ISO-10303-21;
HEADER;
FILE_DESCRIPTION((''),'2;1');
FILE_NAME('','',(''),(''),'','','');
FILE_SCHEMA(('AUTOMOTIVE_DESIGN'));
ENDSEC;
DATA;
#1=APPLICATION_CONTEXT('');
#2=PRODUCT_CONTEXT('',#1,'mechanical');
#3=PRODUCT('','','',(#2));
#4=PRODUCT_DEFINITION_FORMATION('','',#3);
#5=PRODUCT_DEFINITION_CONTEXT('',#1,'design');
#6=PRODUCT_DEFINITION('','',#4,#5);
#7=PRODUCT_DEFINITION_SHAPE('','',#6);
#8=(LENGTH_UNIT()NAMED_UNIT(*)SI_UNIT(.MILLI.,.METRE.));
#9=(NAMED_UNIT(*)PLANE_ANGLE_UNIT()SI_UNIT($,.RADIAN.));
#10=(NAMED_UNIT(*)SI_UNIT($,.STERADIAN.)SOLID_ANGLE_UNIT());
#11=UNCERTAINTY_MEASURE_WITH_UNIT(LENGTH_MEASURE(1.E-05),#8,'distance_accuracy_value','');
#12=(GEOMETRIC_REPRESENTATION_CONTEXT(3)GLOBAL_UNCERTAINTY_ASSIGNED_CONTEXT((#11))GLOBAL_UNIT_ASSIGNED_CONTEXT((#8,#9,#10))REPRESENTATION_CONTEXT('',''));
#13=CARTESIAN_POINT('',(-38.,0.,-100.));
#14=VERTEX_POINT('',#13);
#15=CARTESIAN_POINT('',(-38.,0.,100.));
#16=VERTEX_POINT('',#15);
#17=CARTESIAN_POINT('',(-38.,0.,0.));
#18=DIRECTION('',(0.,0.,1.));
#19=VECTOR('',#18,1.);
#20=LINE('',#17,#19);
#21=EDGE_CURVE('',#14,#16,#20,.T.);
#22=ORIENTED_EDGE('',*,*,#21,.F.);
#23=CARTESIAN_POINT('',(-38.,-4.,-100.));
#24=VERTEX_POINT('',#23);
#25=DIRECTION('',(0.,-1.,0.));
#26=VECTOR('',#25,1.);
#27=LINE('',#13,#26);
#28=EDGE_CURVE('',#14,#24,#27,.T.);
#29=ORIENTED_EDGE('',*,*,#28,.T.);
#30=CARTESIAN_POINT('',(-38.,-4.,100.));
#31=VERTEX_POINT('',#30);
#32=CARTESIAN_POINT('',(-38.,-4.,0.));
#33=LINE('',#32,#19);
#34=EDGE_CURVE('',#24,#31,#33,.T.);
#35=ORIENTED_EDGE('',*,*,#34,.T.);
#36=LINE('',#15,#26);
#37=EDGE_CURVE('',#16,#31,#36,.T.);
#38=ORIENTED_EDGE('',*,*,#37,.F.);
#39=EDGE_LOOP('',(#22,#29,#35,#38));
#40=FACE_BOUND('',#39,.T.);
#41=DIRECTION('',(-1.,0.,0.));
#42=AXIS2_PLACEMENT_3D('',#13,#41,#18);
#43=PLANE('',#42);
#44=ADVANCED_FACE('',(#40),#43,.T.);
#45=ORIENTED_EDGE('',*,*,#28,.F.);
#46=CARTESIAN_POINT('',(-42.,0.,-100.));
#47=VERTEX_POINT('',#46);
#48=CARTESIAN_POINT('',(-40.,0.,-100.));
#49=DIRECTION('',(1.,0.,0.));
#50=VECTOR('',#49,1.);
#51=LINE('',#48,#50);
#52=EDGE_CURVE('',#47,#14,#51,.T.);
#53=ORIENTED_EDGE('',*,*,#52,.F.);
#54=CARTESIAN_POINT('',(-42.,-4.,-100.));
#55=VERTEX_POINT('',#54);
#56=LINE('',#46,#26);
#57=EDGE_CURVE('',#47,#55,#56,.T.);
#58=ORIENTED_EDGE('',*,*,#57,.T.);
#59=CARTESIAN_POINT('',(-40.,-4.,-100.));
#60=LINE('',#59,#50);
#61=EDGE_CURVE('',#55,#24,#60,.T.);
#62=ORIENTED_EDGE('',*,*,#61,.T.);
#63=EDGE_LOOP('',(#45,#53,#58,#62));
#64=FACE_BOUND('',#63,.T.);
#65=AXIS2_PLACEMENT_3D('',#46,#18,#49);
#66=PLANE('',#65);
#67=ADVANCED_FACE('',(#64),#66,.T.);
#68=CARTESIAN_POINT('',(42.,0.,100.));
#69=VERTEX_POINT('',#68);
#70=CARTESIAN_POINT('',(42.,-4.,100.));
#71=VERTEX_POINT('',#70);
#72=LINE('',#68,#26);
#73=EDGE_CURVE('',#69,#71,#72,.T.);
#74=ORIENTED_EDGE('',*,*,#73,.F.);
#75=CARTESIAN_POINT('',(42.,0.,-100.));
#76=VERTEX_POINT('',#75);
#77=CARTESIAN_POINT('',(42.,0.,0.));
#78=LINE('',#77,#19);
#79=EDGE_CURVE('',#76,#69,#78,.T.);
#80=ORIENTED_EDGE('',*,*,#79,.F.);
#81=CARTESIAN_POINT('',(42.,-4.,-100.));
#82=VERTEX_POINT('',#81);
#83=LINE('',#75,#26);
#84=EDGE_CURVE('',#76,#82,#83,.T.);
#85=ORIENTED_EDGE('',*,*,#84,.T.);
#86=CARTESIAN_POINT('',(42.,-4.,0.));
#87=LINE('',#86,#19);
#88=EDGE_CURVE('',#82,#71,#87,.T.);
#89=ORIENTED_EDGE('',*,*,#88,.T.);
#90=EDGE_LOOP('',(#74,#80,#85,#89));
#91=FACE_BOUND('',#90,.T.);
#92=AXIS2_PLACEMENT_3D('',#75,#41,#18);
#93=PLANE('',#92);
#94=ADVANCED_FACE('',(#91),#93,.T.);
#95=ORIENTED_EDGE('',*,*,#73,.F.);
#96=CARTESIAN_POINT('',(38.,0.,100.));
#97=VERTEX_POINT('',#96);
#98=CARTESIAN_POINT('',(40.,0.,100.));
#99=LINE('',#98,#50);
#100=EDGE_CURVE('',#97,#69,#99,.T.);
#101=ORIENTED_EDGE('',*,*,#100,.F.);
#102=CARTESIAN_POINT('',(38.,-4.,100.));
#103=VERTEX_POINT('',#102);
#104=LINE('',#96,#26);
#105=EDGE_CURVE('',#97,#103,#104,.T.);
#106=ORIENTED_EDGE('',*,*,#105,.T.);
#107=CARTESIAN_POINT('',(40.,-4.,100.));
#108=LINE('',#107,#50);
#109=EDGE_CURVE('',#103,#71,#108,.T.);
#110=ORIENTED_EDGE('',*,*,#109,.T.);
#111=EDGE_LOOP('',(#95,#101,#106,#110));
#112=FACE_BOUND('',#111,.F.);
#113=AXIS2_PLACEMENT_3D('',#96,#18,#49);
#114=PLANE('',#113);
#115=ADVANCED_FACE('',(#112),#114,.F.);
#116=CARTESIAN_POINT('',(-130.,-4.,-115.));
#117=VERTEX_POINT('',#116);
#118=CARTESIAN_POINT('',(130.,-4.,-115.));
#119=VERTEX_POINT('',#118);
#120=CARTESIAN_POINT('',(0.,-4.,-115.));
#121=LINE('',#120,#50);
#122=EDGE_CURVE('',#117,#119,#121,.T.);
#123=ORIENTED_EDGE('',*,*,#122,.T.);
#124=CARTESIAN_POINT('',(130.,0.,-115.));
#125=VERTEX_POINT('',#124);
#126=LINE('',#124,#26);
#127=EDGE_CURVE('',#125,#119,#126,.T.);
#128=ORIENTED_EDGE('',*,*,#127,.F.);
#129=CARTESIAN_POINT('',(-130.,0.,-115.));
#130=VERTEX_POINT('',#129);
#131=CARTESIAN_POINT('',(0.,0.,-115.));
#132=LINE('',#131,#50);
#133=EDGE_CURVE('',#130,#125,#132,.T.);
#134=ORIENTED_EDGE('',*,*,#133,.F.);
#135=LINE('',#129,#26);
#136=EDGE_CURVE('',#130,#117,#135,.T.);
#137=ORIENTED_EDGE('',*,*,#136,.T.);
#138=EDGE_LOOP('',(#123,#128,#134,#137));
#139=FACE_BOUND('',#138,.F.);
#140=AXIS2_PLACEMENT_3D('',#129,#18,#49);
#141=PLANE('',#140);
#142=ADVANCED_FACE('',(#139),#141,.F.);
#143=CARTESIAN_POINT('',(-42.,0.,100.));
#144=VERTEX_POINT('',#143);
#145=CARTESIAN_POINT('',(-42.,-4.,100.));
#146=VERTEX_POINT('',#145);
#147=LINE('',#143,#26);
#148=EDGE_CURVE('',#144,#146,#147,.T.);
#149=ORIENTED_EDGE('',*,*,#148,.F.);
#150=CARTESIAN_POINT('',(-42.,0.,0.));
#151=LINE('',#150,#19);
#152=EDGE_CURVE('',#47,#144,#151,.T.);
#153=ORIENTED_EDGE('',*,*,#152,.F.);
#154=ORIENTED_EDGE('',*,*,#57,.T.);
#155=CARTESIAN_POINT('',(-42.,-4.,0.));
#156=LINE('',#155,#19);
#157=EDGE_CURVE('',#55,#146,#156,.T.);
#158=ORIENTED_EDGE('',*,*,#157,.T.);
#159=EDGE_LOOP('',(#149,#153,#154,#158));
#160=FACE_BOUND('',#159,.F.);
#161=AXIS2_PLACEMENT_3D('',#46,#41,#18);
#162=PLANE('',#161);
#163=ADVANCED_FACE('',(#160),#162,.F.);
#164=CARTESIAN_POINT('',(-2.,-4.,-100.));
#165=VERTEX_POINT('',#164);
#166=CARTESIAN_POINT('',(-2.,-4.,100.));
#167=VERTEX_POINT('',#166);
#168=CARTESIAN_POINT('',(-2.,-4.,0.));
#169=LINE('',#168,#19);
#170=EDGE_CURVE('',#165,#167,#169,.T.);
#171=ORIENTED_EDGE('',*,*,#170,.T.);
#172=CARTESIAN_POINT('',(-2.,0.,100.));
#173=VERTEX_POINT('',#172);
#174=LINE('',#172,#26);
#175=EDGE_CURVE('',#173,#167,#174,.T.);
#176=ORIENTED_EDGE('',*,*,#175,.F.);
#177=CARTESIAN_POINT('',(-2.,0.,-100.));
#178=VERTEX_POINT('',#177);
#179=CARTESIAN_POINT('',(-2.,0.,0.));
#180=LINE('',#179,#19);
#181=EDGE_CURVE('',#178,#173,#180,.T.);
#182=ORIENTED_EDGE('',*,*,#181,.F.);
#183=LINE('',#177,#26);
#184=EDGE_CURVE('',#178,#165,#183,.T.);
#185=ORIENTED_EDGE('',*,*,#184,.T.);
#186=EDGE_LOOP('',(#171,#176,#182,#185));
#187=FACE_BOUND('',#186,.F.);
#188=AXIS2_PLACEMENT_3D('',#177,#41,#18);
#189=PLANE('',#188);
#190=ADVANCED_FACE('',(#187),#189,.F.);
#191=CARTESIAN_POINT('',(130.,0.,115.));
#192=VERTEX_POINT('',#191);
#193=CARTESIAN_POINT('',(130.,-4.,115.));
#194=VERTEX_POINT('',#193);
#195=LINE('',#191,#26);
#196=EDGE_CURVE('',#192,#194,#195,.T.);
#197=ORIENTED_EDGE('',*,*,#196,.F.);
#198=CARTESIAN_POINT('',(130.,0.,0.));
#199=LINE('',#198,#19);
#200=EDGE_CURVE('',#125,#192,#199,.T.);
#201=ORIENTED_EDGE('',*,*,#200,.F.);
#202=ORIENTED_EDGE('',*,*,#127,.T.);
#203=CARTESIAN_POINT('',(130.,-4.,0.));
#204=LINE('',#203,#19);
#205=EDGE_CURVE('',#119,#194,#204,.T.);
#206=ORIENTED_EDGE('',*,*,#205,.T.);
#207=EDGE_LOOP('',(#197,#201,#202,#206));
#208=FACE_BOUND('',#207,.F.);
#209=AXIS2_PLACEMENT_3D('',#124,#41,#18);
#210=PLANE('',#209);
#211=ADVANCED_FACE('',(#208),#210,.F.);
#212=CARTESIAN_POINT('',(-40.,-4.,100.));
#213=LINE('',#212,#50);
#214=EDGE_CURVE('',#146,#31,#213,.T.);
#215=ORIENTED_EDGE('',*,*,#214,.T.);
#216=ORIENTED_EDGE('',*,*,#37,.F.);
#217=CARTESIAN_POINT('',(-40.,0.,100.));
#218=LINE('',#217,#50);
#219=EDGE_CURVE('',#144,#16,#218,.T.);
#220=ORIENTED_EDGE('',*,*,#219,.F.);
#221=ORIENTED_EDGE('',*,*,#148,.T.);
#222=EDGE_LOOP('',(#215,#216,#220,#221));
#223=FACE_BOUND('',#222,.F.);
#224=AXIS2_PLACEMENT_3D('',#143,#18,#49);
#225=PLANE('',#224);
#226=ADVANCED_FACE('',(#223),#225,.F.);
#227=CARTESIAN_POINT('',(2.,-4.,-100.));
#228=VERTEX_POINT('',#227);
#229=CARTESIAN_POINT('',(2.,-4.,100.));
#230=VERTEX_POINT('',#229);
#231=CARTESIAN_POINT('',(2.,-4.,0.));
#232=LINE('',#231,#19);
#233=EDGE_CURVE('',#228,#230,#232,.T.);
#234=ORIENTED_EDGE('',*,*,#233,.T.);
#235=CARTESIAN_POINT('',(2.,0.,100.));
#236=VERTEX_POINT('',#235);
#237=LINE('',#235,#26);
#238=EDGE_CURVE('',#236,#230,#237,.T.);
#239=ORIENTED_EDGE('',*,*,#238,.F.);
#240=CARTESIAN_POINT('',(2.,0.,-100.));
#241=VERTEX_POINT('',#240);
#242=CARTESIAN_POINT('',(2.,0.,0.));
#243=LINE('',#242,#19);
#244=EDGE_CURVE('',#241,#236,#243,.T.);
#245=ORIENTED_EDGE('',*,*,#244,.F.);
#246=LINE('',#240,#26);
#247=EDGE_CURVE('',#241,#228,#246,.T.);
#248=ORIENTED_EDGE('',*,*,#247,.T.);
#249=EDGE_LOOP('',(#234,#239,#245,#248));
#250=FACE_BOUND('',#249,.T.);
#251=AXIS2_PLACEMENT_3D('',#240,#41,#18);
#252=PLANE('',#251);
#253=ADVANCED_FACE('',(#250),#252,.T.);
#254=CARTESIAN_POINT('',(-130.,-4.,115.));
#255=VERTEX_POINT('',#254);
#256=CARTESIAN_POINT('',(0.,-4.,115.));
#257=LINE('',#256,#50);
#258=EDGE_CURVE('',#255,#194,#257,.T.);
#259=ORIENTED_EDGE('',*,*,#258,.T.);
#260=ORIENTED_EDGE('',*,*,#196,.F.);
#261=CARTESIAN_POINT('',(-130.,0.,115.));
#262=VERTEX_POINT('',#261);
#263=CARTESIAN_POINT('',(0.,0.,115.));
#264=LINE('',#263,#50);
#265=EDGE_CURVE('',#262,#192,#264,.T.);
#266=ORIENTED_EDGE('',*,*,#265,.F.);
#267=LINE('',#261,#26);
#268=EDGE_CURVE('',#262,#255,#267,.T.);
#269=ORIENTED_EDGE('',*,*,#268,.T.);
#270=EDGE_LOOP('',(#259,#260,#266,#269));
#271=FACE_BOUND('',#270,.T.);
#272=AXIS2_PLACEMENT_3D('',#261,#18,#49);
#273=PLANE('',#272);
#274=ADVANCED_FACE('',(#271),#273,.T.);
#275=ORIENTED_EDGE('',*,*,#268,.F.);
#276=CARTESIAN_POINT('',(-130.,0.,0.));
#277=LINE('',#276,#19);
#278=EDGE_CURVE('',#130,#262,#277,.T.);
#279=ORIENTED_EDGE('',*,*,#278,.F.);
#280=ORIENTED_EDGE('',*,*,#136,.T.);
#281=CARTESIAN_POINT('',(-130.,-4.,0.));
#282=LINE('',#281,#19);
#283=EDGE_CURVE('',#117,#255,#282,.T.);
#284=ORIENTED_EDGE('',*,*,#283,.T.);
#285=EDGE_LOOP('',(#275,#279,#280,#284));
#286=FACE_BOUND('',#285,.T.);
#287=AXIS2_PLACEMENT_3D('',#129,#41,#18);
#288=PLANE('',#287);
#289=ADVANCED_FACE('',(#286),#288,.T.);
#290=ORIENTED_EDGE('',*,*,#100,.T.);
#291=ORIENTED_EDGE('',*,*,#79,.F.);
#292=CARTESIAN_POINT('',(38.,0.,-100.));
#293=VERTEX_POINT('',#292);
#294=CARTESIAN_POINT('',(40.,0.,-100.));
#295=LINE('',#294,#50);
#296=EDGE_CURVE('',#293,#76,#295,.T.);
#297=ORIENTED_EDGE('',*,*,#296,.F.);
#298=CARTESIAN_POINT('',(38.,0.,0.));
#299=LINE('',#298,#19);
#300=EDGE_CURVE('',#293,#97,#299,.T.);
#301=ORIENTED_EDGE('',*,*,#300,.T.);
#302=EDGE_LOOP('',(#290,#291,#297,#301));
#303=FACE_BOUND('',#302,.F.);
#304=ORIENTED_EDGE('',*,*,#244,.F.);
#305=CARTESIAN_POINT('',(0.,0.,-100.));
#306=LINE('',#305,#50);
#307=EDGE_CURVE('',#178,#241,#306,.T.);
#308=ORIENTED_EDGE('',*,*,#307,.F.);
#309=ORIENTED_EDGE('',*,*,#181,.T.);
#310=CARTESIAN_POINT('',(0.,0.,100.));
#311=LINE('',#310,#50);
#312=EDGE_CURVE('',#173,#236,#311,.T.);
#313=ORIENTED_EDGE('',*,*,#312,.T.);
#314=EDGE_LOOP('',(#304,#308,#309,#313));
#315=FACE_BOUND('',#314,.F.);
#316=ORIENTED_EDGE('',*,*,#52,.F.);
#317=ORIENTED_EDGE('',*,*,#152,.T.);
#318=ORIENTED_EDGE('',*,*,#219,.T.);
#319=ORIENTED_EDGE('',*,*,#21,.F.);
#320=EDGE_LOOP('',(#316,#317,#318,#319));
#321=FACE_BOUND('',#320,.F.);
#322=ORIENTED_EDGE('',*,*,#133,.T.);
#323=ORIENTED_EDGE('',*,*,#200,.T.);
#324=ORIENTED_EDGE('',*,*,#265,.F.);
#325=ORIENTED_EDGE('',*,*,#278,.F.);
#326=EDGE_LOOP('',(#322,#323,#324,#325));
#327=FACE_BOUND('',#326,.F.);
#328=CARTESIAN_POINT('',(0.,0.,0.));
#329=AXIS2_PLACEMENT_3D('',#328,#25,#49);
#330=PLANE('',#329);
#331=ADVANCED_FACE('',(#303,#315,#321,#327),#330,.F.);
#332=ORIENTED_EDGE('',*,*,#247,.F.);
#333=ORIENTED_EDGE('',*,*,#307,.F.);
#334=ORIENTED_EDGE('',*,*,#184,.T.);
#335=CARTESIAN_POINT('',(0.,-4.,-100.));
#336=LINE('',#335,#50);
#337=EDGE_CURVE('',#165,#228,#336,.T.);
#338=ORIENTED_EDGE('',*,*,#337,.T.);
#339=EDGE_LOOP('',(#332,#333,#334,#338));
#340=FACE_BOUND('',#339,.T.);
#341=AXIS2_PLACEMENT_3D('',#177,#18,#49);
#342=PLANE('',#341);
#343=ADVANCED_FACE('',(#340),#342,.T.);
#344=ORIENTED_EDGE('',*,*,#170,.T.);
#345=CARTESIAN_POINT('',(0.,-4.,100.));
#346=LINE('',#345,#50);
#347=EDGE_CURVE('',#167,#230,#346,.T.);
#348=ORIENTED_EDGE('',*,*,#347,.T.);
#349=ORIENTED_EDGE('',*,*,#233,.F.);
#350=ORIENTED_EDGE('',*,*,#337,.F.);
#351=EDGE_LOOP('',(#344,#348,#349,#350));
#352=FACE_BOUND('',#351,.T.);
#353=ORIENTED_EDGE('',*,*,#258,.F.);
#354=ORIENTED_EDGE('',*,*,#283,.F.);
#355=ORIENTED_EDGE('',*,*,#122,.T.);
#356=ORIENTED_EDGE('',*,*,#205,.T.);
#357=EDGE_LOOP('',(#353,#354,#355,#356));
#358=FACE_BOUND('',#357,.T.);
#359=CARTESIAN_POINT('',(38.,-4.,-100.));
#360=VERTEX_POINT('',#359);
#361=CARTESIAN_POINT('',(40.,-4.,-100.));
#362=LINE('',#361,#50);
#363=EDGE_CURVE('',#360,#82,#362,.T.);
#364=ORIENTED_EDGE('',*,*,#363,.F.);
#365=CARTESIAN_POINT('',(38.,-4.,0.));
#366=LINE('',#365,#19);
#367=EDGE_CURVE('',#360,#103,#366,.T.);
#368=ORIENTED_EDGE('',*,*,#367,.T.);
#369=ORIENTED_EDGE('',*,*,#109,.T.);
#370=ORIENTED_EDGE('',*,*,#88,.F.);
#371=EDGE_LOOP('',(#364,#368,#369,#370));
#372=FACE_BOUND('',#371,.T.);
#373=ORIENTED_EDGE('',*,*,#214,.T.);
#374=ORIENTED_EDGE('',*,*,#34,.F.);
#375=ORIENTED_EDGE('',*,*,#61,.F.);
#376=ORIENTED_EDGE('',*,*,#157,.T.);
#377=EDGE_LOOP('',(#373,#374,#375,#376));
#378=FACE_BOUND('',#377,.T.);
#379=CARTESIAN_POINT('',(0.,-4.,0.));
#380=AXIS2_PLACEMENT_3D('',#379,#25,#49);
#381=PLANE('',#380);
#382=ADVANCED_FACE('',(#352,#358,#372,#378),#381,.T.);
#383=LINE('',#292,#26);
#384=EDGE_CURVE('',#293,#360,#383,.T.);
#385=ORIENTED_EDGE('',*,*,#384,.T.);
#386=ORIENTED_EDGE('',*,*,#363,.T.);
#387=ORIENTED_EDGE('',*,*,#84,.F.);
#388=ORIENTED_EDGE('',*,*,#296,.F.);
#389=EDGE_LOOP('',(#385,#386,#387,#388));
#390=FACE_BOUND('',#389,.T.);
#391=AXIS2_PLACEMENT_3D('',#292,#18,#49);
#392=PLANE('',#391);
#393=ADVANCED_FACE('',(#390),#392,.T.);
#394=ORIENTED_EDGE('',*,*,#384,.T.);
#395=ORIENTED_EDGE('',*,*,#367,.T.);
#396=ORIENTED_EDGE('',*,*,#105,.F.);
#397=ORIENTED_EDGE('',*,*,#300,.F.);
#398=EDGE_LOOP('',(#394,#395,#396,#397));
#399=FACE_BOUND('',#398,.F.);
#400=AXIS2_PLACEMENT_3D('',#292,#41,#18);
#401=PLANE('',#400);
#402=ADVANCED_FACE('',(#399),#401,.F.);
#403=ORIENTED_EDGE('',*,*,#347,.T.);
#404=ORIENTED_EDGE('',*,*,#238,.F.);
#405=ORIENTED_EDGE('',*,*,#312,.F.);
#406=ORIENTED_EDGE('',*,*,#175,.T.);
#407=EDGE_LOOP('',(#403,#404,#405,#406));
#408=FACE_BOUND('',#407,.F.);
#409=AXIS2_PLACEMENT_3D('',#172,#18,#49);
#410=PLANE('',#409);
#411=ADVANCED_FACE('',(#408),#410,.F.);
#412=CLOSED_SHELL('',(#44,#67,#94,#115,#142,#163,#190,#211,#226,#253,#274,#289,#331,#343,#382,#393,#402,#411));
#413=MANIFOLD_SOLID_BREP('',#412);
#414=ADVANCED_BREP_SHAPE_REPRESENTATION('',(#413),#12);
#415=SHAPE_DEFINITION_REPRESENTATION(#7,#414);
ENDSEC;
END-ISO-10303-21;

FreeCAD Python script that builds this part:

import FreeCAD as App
import Part
import Sketcher

V = App.Vector

doc = App.newDocument("Part")
params = doc.addObject("Spreadsheet::Sheet", "Params")
for row, (alias, value) in enumerate([
    ("sketch1_width", "260 mm"),
    ("sketch1_width2", "4 mm"),
    ("sketch1_height", "230 mm"),
    ("sketch1_height2", "200 mm"),
    ("pad1_length", "4 mm"),
], start=1):
    params.set(f"A{row}", alias)
    params.set(f"B{row}", "=" + value)
    params.setAlias(f"B{row}", alias)

body = doc.addObject("PartDesign::Body", "Body")

sketch1 = body.newObject("Sketcher::SketchObject", "Sketch")
sketch1.AttachmentSupport = (doc.getObject("XZ_Plane"), [""])
sketch1.MapMode = "FlatFace"
sketch1.addGeometry(Part.LineSegment(V(-130, 115, 0), V(-130, -115, 0)), False)
sketch1.addGeometry(Part.LineSegment(V(-130, -115, 0), V(130, -115, 0)), False)
sketch1.addGeometry(Part.LineSegment(V(130, -115, 0), V(130, 115, 0)), False)
sketch1.addGeometry(Part.LineSegment(V(130, 115, 0), V(-130, 115, 0)), False)
sketch1.addGeometry(Part.LineSegment(V(-38, -100, 0), V(-42, -100, 0)), False)
sketch1.addGeometry(Part.LineSegment(V(-42, -100, 0), V(-42, 100, 0)), False)
sketch1.addGeometry(Part.LineSegment(V(-42, 100, 0), V(-38, 100, 0)), False)
sketch1.addGeometry(Part.LineSegment(V(-38, 100, 0), V(-38, -100, 0)), False)
sketch1.addGeometry(Part.LineSegment(V(2, -100, 0), V(-2, -100, 0)), False)
sketch1.addGeometry(Part.LineSegment(V(-2, -100, 0), V(-2, 100, 0)), False)
sketch1.addGeometry(Part.LineSegment(V(-2, 100, 0), V(2, 100, 0)), False)
sketch1.addGeometry(Part.LineSegment(V(2, 100, 0), V(2, -100, 0)), False)
sketch1.addGeometry(Part.LineSegment(V(42, -100, 0), V(38, -100, 0)), False)
sketch1.addGeometry(Part.LineSegment(V(38, -100, 0), V(38, 100, 0)), False)
sketch1.addGeometry(Part.LineSegment(V(38, 100, 0), V(42, 100, 0)), False)
sketch1.addGeometry(Part.LineSegment(V(42, 100, 0), V(42, -100, 0)), False)
sketch1.addConstraint(Sketcher.Constraint("Coincident", 0, 2, 1, 1))
sketch1.addConstraint(Sketcher.Constraint("Coincident", 1, 2, 2, 1))
sketch1.addConstraint(Sketcher.Constraint("Coincident", 2, 2, 3, 1))
sketch1.addConstraint(Sketcher.Constraint("Coincident", 3, 2, 0, 1))
sketch1.addConstraint(Sketcher.Constraint("Coincident", 4, 2, 5, 1))
sketch1.addConstraint(Sketcher.Constraint("Coincident", 5, 2, 6, 1))
sketch1.addConstraint(Sketcher.Constraint("Coincident", 6, 2, 7, 1))
sketch1.addConstraint(Sketcher.Constraint("Coincident", 7, 2, 4, 1))
sketch1.addConstraint(Sketcher.Constraint("Coincident", 8, 2, 9, 1))
sketch1.addConstraint(Sketcher.Constraint("Coincident", 9, 2, 10, 1))
sketch1.addConstraint(Sketcher.Constraint("Coincident", 10, 2, 11, 1))
sketch1.addConstraint(Sketcher.Constraint("Coincident", 11, 2, 8, 1))
sketch1.addConstraint(Sketcher.Constraint("Coincident", 12, 2, 13, 1))
sketch1.addConstraint(Sketcher.Constraint("Coincident", 13, 2, 14, 1))
sketch1.addConstraint(Sketcher.Constraint("Coincident", 14, 2, 15, 1))
sketch1.addConstraint(Sketcher.Constraint("Coincident", 15, 2, 12, 1))
sketch1.addConstraint(Sketcher.Constraint("Vertical", 0))
sketch1.addConstraint(Sketcher.Constraint("Horizontal", 1))
sketch1.addConstraint(Sketcher.Constraint("Vertical", 2))
sketch1.addConstraint(Sketcher.Constraint("Horizontal", 3))
sketch1.addConstraint(Sketcher.Constraint("Horizontal", 4))
sketch1.addConstraint(Sketcher.Constraint("Vertical", 5))
sketch1.addConstraint(Sketcher.Constraint("Horizontal", 6))
sketch1.addConstraint(Sketcher.Constraint("Vertical", 7))
sketch1.addConstraint(Sketcher.Constraint("Horizontal", 8))
sketch1.addConstraint(Sketcher.Constraint("Vertical", 9))
sketch1.addConstraint(Sketcher.Constraint("Horizontal", 10))
sketch1.addConstraint(Sketcher.Constraint("Vertical", 11))
sketch1.addConstraint(Sketcher.Constraint("Horizontal", 12))
sketch1.addConstraint(Sketcher.Constraint("Vertical", 13))
sketch1.addConstraint(Sketcher.Constraint("Horizontal", 14))
sketch1.addConstraint(Sketcher.Constraint("Vertical", 15))
sketch1.addConstraint(Sketcher.Constraint("Symmetric", 0, 2, 2, 2, -1, 1))
sketch1.addConstraint(Sketcher.Constraint("Symmetric", 8, 2, 10, 2, -1, 1))
sketch1.addConstraint(Sketcher.Constraint("Symmetric", 6, 2, 12, 2, -1, 1))
sketch1.addConstraint(Sketcher.Constraint("Symmetric", 4, 2, 14, 2, -1, 1))
sketch1.addConstraint(Sketcher.Constraint("Horizontal", 7, 2, 8, 2))
sketch1.addConstraint(Sketcher.Constraint("Horizontal", 6, 2, 9, 2))
sketch1.addConstraint(Sketcher.Constraint("Equal", 6, 8))
sketch1.addConstraint(Sketcher.Constraint("DistanceX", 1, 1, 1, 2, 260.0))
sketch1.addConstraint(Sketcher.Constraint("DistanceX", 4, 2, 4, 1, 4.0))
sketch1.addConstraint(Sketcher.Constraint("DistanceY", 0, 2, 0, 1, 230.0))
sketch1.addConstraint(Sketcher.Constraint("DistanceY", 5, 1, 5, 2, 200.0))
sketch1.addConstraint(Sketcher.Constraint("DistanceX", 4, 2, -1, 1, 42.0))
sketch1.setExpression("Constraints[39]", "Params.sketch1_width")
sketch1.setExpression("Constraints[40]", "Params.sketch1_width2")
sketch1.setExpression("Constraints[41]", "Params.sketch1_height")
sketch1.setExpression("Constraints[42]", "Params.sketch1_height2")
pad1 = body.newObject("PartDesign::Pad", "Pad")
pad1.Profile = sketch1
pad1.setExpression("Length", "Params.pad1_length")

doc.recompute()
